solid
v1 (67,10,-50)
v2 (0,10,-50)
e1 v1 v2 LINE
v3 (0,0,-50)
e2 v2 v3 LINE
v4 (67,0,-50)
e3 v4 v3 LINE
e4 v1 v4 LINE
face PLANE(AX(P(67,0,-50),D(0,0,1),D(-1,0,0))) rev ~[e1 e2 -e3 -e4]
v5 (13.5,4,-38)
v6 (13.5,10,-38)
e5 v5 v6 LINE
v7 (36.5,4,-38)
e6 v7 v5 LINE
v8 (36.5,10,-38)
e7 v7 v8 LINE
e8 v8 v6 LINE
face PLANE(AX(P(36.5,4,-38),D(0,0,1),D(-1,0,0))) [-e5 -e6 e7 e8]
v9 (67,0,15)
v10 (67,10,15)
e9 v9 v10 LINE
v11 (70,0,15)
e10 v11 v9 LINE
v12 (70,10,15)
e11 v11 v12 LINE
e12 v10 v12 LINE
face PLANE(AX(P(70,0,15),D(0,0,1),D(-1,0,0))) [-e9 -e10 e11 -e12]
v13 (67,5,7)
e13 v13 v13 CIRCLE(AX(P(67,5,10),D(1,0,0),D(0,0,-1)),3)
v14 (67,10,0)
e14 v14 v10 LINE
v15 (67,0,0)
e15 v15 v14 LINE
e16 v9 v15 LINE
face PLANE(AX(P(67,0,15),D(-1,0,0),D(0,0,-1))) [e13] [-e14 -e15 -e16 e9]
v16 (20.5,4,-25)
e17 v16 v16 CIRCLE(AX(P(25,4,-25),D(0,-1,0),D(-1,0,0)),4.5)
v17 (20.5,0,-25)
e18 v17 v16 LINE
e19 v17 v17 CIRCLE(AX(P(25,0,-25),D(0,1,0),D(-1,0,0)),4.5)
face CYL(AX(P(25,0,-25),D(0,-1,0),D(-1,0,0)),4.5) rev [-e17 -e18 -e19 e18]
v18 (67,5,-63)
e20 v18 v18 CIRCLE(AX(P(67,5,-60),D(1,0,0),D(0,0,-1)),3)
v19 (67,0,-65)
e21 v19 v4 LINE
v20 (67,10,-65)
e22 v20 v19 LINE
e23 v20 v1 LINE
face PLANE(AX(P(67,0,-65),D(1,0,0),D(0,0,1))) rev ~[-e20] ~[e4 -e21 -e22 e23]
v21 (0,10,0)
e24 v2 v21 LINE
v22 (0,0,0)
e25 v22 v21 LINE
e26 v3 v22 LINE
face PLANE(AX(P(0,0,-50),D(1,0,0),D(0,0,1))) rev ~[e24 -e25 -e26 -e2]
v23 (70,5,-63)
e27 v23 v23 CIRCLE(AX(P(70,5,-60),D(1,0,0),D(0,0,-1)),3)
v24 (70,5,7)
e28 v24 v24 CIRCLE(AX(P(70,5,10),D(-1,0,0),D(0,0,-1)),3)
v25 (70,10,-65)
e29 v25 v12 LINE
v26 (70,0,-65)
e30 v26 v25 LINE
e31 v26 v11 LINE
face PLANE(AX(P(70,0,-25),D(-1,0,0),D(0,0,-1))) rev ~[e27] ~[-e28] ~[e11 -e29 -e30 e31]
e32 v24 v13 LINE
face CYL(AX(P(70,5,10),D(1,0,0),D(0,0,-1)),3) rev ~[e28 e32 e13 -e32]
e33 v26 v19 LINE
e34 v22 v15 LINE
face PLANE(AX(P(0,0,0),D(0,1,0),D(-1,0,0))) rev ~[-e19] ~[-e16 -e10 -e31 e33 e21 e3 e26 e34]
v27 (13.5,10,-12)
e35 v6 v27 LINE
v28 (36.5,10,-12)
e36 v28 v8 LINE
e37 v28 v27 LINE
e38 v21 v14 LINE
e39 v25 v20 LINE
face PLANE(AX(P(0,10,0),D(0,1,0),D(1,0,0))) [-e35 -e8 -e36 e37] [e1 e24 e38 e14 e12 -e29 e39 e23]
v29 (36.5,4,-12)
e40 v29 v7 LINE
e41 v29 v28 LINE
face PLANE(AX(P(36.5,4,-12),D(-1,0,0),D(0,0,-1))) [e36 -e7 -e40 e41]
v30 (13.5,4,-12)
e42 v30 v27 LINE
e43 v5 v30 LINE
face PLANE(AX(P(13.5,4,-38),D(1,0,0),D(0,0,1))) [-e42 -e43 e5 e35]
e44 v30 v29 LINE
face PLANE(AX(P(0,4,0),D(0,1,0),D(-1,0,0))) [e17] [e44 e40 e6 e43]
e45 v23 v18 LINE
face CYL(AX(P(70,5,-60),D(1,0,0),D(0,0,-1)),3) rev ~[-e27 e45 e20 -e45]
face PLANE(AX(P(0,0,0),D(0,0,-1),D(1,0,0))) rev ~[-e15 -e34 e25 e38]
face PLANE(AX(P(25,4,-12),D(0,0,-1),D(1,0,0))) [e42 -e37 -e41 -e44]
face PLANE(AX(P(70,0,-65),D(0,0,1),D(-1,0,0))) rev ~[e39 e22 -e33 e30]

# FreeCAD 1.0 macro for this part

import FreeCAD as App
import Part
import Sketcher
from FreeCAD import Vector
Q = App.Units.Quantity

doc = App.newDocument("Part")
body = doc.addObject("PartDesign::Body", "Body")

# Sketch on XZ plane
sketch1 = body.newObject("Sketcher::SketchObject", "Sketch")
sketch1.AttachmentSupport = (doc.getObject("XZ_Plane"), [""])
sketch1.MapMode = "FlatFace"
sketch1.addGeometry([
    Part.LineSegment(Vector(0, -50, 0), Vector(0, 0, 0)),  # 0
    Part.LineSegment(Vector(0, 0, 0), Vector(67, 0, 0)),  # 1
    Part.LineSegment(Vector(67, 0, 0), Vector(67, 15, 0)),  # 2
    Part.LineSegment(Vector(67, 15, 0), Vector(70, 15, 0)),  # 3
    Part.LineSegment(Vector(70, 15, 0), Vector(70, -65, 0)),  # 4
    Part.LineSegment(Vector(70, -65, 0), Vector(67, -65, 0)),  # 5
    Part.LineSegment(Vector(67, -65, 0), Vector(67, -50, 0)),  # 6
    Part.LineSegment(Vector(67, -50, 0), Vector(0, -50, 0)),  # 7
    Part.Circle(Vector(25, -25, 0), Vector(0, 0, 1), 4.5),  # 8
], False)
sketch1.addConstraint([
    Sketcher.Constraint("Coincident", 0, 2, 1, 1),
    Sketcher.Constraint("Coincident", 1, 2, 2, 1),
    Sketcher.Constraint("Coincident", 2, 2, 3, 1),
    Sketcher.Constraint("Coincident", 3, 2, 4, 1),
    Sketcher.Constraint("Coincident", 4, 2, 5, 1),
    Sketcher.Constraint("Coincident", 5, 2, 6, 1),
    Sketcher.Constraint("Coincident", 6, 2, 7, 1),
    Sketcher.Constraint("Coincident", 7, 2, 0, 1),
    Sketcher.Constraint("Vertical", 0),
    Sketcher.Constraint("Horizontal", 1),
    Sketcher.Constraint("Vertical", 2),
    Sketcher.Constraint("Horizontal", 3),
    Sketcher.Constraint("Vertical", 4),
    Sketcher.Constraint("Horizontal", 5),
    Sketcher.Constraint("Vertical", 6),
    Sketcher.Constraint("Horizontal", 7),
    Sketcher.Constraint("Coincident", 0, 2, -1, 1),
    Sketcher.Constraint("Vertical", 2, 2, 5, 2),
    Sketcher.Constraint("Equal", 2, 6),
    Sketcher.Constraint("Diameter", 8, Q("9 mm")),
    Sketcher.Constraint("DistanceX", 3, 1, 3, 2, Q("3 mm")),
    Sketcher.Constraint("DistanceY", 0, 1, 0, 2, Q("50 mm")),
    Sketcher.Constraint("DistanceY", 2, 1, 2, 2, Q("15 mm")),
    Sketcher.Constraint("DistanceX", -1, 1, 8, 3, Q("25 mm")),
    Sketcher.Constraint("DistanceY", 8, 3, -1, 1, Q("25 mm")),
    Sketcher.Constraint("DistanceX", -1, 1, 3, 2, Q("70 mm")),
])
pad1 = body.newObject("PartDesign::Pad", "Pad")
pad1.Profile = sketch1
pad1.Length = 4
pad1.Reversed = True

# Sketch on XZ plane
sketch2 = body.newObject("Sketcher::SketchObject", "Sketch001")
sketch2.AttachmentSupport = (doc.getObject("XZ_Plane"), [""])
sketch2.MapMode = "FlatFace"
sketch2.AttachmentOffset = App.Placement(Vector(0, 0, -4), App.Rotation())
sketch2.addGeometry([
    Part.LineSegment(Vector(70, -65, 0), Vector(67, -65, 0)),  # 0
    Part.LineSegment(Vector(67, -65, 0), Vector(67, -50, 0)),  # 1
    Part.LineSegment(Vector(67, -50, 0), Vector(0, -50, 0)),  # 2
    Part.LineSegment(Vector(0, -50, 0), Vector(0, 0, 0)),  # 3
    Part.LineSegment(Vector(0, 0, 0), Vector(67, 0, 0)),  # 4
    Part.LineSegment(Vector(67, 0, 0), Vector(67, 15, 0)),  # 5
    Part.LineSegment(Vector(67, 15, 0), Vector(70, 15, 0)),  # 6
    Part.LineSegment(Vector(70, 15, 0), Vector(70, -65, 0)),  # 7
    Part.LineSegment(Vector(36.5, -12, 0), Vector(13.5, -12, 0)),  # 8
    Part.LineSegment(Vector(13.5, -12, 0), Vector(13.5, -38, 0)),  # 9
    Part.LineSegment(Vector(13.5, -38, 0), Vector(36.5, -38, 0)),  # 10
    Part.LineSegment(Vector(36.5, -38, 0), Vector(36.5, -12, 0)),  # 11
], False)
sketch2.addConstraint([
    Sketcher.Constraint("Coincident", 0, 2, 1, 1),
    Sketcher.Constraint("Coincident", 1, 2, 2, 1),
    Sketcher.Constraint("Coincident", 2, 2, 3, 1),
    Sketcher.Constraint("Coincident", 3, 2, 4, 1),
    Sketcher.Constraint("Coincident", 4, 2, 5, 1),
    Sketcher.Constraint("Coincident", 5, 2, 6, 1),
    Sketcher.Constraint("Coincident", 6, 2, 7, 1),
    Sketcher.Constraint("Coincident", 7, 2, 0, 1),
    Sketcher.Constraint("Coincident", 8, 2, 9, 1),
    Sketcher.Constraint("Coincident", 9, 2, 10, 1),
    Sketcher.Constraint("Coincident", 10, 2, 11, 1),
    Sketcher.Constraint("Coincident", 11, 2, 8, 1),
    Sketcher.Constraint("Horizontal", 0),
    Sketcher.Constraint("Vertical", 1),
    Sketcher.Constraint("Horizontal", 2),
    Sketcher.Constraint("Vertical", 3),
    Sketcher.Constraint("Horizontal", 4),
    Sketcher.Constraint("Vertical", 5),
    Sketcher.Constraint("Horizontal", 6),
    Sketcher.Constraint("Vertical", 7),
    Sketcher.Constraint("Horizontal", 8),
    Sketcher.Constraint("Vertical", 9),
    Sketcher.Constraint("Horizontal", 10),
    Sketcher.Constraint("Vertical", 11),
    Sketcher.Constraint("Coincident", 3, 2, -1, 1),
    Sketcher.Constraint("Vertical", 1, 2, 4, 2),
    Sketcher.Constraint("Equal", 1, 5),
    Sketcher.Constraint("DistanceX", 8, 2, 8, 1, Q("23 mm")),
    Sketcher.Constraint("DistanceY", 9, 2, 9, 1, Q("26 mm")),
    Sketcher.Constraint("DistanceX", 0, 2, 0, 1, Q("3 mm")),
    Sketcher.Constraint("DistanceX", 2, 2, 2, 1, Q("67 mm")),
    Sketcher.Constraint("DistanceY", 1, 1, 1, 2, Q("15 mm")),
    Sketcher.Constraint("DistanceY", 3, 1, 3, 2, Q("50 mm")),
    Sketcher.Constraint("DistanceY", 8, 2, -1, 1, Q("12 mm")),
    Sketcher.Constraint("DistanceX", -1, 1, 8, 2, Q("13.5 mm")),
])
pad2 = body.newObject("PartDesign::Pad", "Pad001")
pad2.Profile = sketch2
pad2.Length = 6
pad2.Reversed = True

# Sketch on YZ plane
sketch3 = body.newObject("Sketcher::SketchObject", "Sketch002")
sketch3.AttachmentSupport = (doc.getObject("YZ_Plane"), [""])
sketch3.MapMode = "FlatFace"
sketch3.AttachmentOffset = App.Placement(Vector(0, 0, 70), App.Rotation())
sketch3.addGeometry([
    Part.Circle(Vector(5, 10, 0), Vector(0, 0, 1), 3),
    Part.Circle(Vector(5, -60, 0), Vector(0, 0, 1), 3),
], False)
sketch3.addConstraint([
    Sketcher.Constraint("Equal", 0, 1),
    Sketcher.Constraint("Vertical", 0, 3, 1, 3),
    Sketcher.Constraint("Diameter", 0, Q("6 mm")),
    Sketcher.Constraint("DistanceX", -1, 1, 0, 3, Q("5 mm")),
    Sketcher.Constraint("DistanceY", -1, 1, 0, 3, Q("10 mm")),
    Sketcher.Constraint("DistanceY", 1, 3, -1, 1, Q("60 mm")),
])
pocket1 = body.newObject("PartDesign::Pocket", "Pocket")
pocket1.Profile = sketch3
pocket1.Length = 3.75

doc.recompute()
